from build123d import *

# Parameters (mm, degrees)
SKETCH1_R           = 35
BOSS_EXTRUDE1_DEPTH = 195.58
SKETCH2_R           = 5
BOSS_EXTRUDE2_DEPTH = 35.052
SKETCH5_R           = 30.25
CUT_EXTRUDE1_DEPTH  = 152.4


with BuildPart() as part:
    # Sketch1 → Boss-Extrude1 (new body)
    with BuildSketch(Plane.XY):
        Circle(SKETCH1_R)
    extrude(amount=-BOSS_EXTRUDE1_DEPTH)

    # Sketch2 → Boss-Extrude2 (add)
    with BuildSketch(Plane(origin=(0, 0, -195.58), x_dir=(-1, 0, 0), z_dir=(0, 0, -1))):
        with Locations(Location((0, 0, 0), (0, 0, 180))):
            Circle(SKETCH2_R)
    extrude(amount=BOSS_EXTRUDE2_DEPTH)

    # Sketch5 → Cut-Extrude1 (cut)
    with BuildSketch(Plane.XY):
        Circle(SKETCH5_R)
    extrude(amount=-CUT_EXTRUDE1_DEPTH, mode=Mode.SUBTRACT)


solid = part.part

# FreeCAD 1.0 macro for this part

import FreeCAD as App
import Part
import Sketcher

V = App.Vector

doc = App.newDocument("Part")
params = doc.addObject("Spreadsheet::Sheet", "Params")
for row, (alias, value) in enumerate([
    ("sketch1_diameter", "70 mm"),
    ("pad1_length", "195.58 mm"),
    ("sketch2_diameter", "10 mm"),
    ("pad2_length", "35.052 mm"),
    ("sketch3_diameter", "60.5 mm"),
    ("pocket1_length", "152.4 mm"),
], start=1):
    params.set(f"A{row}", alias)
    params.set(f"B{row}", "=" + value)
    params.setAlias(f"B{row}", alias)

body = doc.addObject("PartDesign::Body", "Body")

sketch1 = body.newObject("Sketcher::SketchObject", "Sketch")
sketch1.AttachmentSupport = (doc.getObject("XY_Plane"), [""])
sketch1.MapMode = "FlatFace"
sketch1.addGeometry(Part.Circle(V(0, 0, 0), V(0, 0, 1), 35), False)
sketch1.addConstraint(Sketcher.Constraint("Coincident", 0, 3, -1, 1))
sketch1.addConstraint(Sketcher.Constraint("Diameter", 0, 70.0))
sketch1.setExpression("Constraints[1]", "Params.sketch1_diameter")
pad1 = body.newObject("PartDesign::Pad", "Pad")
pad1.Profile = sketch1
pad1.setExpression("Length", "Params.pad1_length")
pad1.Reversed = True

sketch2 = body.newObject("Sketcher::SketchObject", "Sketch001")
sketch2.AttachmentSupport = (doc.getObject("XY_Plane"), [""])
sketch2.MapMode = "FlatFace"
sketch2.AttachmentOffset = App.Placement(V(0, 0, -195.58), App.Rotation())
sketch2.addGeometry(Part.Circle(V(0, 0, 0), V(0, 0, 1), 5), False)
sketch2.addConstraint(Sketcher.Constraint("Coincident", 0, 3, -1, 1))
sketch2.addConstraint(Sketcher.Constraint("Diameter", 0, 10.0))
sketch2.setExpression("Constraints[1]", "Params.sketch2_diameter")
pad2 = body.newObject("PartDesign::Pad", "Pad001")
pad2.Profile = sketch2
pad2.setExpression("Length", "Params.pad2_length")
pad2.Reversed = True

sketch3 = body.newObject("Sketcher::SketchObject", "Sketch002")
sketch3.AttachmentSupport = (doc.getObject("XY_Plane"), [""])
sketch3.MapMode = "FlatFace"
sketch3.addGeometry(Part.Circle(V(0, 0, 0), V(0, 0, 1), 30), False)
sketch3.addConstraint(Sketcher.Constraint("Coincident", 0, 3, -1, 1))
sketch3.addConstraint(Sketcher.Constraint("Diameter", 0, 60.5))
sketch3.setExpression("Constraints[1]", "Params.sketch3_diameter")
pocket1 = body.newObject("PartDesign::Pocket", "Pocket")
pocket1.Profile = sketch3
pocket1.setExpression("Length", "Params.pocket1_length")

doc.recompute()
